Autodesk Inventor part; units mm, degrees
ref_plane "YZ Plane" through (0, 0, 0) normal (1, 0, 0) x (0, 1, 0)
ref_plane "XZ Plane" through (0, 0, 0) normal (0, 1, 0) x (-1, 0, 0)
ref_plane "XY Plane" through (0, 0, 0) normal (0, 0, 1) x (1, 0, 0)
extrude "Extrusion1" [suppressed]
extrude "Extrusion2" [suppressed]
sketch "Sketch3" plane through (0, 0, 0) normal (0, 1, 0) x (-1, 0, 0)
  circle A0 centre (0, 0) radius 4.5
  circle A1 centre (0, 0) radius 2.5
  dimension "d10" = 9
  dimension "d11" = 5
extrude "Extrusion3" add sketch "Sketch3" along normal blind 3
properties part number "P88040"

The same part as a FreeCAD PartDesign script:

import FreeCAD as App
import Part
import Sketcher

doc = App.newDocument("Part")
params = doc.addObject("Spreadsheet::Sheet", "Params")
for row, (alias, value) in enumerate([
    ("sketch1_diameter", "9 mm"),
    ("sketch1_diameter2", "5 mm"),
    ("pad1_length", "3 mm"),
], start=1):
    params.set(f"A{row}", alias)
    params.set(f"B{row}", "=" + value)
    params.setAlias(f"B{row}", alias)

body = doc.addObject("PartDesign::Body", "Body")

sketch1 = body.newObject("Sketcher::SketchObject", "Sketch")
sketch1.AttachmentSupport = (doc.getObject("XZ_Plane"), [""])
sketch1.MapMode = "FlatFace"
sketch1.addGeometry([
    Part.Circle(App.Vector(0, 0, 0), App.Vector(0, 0, 1), 4.5),
    Part.Circle(App.Vector(0, 0, 0), App.Vector(0, 0, 1), 2.5),
], False)
sketch1.addConstraint([
    Sketcher.Constraint("Coincident", 0, 3, -1, 1),
    Sketcher.Constraint("Coincident", 1, 3, -1, 1),
    Sketcher.Constraint("Diameter", 0, 9.0),
    Sketcher.Constraint("Diameter", 1, 5.0),
])
sketch1.setExpression("Constraints[2]", "Params.sketch1_diameter")
sketch1.setExpression("Constraints[3]", "Params.sketch1_diameter2")
pad1 = body.newObject("PartDesign::Pad", "Pad")
pad1.Profile = sketch1
pad1.setExpression("Length", "Params.pad1_length")
pad1.Reversed = True

doc.recompute()
